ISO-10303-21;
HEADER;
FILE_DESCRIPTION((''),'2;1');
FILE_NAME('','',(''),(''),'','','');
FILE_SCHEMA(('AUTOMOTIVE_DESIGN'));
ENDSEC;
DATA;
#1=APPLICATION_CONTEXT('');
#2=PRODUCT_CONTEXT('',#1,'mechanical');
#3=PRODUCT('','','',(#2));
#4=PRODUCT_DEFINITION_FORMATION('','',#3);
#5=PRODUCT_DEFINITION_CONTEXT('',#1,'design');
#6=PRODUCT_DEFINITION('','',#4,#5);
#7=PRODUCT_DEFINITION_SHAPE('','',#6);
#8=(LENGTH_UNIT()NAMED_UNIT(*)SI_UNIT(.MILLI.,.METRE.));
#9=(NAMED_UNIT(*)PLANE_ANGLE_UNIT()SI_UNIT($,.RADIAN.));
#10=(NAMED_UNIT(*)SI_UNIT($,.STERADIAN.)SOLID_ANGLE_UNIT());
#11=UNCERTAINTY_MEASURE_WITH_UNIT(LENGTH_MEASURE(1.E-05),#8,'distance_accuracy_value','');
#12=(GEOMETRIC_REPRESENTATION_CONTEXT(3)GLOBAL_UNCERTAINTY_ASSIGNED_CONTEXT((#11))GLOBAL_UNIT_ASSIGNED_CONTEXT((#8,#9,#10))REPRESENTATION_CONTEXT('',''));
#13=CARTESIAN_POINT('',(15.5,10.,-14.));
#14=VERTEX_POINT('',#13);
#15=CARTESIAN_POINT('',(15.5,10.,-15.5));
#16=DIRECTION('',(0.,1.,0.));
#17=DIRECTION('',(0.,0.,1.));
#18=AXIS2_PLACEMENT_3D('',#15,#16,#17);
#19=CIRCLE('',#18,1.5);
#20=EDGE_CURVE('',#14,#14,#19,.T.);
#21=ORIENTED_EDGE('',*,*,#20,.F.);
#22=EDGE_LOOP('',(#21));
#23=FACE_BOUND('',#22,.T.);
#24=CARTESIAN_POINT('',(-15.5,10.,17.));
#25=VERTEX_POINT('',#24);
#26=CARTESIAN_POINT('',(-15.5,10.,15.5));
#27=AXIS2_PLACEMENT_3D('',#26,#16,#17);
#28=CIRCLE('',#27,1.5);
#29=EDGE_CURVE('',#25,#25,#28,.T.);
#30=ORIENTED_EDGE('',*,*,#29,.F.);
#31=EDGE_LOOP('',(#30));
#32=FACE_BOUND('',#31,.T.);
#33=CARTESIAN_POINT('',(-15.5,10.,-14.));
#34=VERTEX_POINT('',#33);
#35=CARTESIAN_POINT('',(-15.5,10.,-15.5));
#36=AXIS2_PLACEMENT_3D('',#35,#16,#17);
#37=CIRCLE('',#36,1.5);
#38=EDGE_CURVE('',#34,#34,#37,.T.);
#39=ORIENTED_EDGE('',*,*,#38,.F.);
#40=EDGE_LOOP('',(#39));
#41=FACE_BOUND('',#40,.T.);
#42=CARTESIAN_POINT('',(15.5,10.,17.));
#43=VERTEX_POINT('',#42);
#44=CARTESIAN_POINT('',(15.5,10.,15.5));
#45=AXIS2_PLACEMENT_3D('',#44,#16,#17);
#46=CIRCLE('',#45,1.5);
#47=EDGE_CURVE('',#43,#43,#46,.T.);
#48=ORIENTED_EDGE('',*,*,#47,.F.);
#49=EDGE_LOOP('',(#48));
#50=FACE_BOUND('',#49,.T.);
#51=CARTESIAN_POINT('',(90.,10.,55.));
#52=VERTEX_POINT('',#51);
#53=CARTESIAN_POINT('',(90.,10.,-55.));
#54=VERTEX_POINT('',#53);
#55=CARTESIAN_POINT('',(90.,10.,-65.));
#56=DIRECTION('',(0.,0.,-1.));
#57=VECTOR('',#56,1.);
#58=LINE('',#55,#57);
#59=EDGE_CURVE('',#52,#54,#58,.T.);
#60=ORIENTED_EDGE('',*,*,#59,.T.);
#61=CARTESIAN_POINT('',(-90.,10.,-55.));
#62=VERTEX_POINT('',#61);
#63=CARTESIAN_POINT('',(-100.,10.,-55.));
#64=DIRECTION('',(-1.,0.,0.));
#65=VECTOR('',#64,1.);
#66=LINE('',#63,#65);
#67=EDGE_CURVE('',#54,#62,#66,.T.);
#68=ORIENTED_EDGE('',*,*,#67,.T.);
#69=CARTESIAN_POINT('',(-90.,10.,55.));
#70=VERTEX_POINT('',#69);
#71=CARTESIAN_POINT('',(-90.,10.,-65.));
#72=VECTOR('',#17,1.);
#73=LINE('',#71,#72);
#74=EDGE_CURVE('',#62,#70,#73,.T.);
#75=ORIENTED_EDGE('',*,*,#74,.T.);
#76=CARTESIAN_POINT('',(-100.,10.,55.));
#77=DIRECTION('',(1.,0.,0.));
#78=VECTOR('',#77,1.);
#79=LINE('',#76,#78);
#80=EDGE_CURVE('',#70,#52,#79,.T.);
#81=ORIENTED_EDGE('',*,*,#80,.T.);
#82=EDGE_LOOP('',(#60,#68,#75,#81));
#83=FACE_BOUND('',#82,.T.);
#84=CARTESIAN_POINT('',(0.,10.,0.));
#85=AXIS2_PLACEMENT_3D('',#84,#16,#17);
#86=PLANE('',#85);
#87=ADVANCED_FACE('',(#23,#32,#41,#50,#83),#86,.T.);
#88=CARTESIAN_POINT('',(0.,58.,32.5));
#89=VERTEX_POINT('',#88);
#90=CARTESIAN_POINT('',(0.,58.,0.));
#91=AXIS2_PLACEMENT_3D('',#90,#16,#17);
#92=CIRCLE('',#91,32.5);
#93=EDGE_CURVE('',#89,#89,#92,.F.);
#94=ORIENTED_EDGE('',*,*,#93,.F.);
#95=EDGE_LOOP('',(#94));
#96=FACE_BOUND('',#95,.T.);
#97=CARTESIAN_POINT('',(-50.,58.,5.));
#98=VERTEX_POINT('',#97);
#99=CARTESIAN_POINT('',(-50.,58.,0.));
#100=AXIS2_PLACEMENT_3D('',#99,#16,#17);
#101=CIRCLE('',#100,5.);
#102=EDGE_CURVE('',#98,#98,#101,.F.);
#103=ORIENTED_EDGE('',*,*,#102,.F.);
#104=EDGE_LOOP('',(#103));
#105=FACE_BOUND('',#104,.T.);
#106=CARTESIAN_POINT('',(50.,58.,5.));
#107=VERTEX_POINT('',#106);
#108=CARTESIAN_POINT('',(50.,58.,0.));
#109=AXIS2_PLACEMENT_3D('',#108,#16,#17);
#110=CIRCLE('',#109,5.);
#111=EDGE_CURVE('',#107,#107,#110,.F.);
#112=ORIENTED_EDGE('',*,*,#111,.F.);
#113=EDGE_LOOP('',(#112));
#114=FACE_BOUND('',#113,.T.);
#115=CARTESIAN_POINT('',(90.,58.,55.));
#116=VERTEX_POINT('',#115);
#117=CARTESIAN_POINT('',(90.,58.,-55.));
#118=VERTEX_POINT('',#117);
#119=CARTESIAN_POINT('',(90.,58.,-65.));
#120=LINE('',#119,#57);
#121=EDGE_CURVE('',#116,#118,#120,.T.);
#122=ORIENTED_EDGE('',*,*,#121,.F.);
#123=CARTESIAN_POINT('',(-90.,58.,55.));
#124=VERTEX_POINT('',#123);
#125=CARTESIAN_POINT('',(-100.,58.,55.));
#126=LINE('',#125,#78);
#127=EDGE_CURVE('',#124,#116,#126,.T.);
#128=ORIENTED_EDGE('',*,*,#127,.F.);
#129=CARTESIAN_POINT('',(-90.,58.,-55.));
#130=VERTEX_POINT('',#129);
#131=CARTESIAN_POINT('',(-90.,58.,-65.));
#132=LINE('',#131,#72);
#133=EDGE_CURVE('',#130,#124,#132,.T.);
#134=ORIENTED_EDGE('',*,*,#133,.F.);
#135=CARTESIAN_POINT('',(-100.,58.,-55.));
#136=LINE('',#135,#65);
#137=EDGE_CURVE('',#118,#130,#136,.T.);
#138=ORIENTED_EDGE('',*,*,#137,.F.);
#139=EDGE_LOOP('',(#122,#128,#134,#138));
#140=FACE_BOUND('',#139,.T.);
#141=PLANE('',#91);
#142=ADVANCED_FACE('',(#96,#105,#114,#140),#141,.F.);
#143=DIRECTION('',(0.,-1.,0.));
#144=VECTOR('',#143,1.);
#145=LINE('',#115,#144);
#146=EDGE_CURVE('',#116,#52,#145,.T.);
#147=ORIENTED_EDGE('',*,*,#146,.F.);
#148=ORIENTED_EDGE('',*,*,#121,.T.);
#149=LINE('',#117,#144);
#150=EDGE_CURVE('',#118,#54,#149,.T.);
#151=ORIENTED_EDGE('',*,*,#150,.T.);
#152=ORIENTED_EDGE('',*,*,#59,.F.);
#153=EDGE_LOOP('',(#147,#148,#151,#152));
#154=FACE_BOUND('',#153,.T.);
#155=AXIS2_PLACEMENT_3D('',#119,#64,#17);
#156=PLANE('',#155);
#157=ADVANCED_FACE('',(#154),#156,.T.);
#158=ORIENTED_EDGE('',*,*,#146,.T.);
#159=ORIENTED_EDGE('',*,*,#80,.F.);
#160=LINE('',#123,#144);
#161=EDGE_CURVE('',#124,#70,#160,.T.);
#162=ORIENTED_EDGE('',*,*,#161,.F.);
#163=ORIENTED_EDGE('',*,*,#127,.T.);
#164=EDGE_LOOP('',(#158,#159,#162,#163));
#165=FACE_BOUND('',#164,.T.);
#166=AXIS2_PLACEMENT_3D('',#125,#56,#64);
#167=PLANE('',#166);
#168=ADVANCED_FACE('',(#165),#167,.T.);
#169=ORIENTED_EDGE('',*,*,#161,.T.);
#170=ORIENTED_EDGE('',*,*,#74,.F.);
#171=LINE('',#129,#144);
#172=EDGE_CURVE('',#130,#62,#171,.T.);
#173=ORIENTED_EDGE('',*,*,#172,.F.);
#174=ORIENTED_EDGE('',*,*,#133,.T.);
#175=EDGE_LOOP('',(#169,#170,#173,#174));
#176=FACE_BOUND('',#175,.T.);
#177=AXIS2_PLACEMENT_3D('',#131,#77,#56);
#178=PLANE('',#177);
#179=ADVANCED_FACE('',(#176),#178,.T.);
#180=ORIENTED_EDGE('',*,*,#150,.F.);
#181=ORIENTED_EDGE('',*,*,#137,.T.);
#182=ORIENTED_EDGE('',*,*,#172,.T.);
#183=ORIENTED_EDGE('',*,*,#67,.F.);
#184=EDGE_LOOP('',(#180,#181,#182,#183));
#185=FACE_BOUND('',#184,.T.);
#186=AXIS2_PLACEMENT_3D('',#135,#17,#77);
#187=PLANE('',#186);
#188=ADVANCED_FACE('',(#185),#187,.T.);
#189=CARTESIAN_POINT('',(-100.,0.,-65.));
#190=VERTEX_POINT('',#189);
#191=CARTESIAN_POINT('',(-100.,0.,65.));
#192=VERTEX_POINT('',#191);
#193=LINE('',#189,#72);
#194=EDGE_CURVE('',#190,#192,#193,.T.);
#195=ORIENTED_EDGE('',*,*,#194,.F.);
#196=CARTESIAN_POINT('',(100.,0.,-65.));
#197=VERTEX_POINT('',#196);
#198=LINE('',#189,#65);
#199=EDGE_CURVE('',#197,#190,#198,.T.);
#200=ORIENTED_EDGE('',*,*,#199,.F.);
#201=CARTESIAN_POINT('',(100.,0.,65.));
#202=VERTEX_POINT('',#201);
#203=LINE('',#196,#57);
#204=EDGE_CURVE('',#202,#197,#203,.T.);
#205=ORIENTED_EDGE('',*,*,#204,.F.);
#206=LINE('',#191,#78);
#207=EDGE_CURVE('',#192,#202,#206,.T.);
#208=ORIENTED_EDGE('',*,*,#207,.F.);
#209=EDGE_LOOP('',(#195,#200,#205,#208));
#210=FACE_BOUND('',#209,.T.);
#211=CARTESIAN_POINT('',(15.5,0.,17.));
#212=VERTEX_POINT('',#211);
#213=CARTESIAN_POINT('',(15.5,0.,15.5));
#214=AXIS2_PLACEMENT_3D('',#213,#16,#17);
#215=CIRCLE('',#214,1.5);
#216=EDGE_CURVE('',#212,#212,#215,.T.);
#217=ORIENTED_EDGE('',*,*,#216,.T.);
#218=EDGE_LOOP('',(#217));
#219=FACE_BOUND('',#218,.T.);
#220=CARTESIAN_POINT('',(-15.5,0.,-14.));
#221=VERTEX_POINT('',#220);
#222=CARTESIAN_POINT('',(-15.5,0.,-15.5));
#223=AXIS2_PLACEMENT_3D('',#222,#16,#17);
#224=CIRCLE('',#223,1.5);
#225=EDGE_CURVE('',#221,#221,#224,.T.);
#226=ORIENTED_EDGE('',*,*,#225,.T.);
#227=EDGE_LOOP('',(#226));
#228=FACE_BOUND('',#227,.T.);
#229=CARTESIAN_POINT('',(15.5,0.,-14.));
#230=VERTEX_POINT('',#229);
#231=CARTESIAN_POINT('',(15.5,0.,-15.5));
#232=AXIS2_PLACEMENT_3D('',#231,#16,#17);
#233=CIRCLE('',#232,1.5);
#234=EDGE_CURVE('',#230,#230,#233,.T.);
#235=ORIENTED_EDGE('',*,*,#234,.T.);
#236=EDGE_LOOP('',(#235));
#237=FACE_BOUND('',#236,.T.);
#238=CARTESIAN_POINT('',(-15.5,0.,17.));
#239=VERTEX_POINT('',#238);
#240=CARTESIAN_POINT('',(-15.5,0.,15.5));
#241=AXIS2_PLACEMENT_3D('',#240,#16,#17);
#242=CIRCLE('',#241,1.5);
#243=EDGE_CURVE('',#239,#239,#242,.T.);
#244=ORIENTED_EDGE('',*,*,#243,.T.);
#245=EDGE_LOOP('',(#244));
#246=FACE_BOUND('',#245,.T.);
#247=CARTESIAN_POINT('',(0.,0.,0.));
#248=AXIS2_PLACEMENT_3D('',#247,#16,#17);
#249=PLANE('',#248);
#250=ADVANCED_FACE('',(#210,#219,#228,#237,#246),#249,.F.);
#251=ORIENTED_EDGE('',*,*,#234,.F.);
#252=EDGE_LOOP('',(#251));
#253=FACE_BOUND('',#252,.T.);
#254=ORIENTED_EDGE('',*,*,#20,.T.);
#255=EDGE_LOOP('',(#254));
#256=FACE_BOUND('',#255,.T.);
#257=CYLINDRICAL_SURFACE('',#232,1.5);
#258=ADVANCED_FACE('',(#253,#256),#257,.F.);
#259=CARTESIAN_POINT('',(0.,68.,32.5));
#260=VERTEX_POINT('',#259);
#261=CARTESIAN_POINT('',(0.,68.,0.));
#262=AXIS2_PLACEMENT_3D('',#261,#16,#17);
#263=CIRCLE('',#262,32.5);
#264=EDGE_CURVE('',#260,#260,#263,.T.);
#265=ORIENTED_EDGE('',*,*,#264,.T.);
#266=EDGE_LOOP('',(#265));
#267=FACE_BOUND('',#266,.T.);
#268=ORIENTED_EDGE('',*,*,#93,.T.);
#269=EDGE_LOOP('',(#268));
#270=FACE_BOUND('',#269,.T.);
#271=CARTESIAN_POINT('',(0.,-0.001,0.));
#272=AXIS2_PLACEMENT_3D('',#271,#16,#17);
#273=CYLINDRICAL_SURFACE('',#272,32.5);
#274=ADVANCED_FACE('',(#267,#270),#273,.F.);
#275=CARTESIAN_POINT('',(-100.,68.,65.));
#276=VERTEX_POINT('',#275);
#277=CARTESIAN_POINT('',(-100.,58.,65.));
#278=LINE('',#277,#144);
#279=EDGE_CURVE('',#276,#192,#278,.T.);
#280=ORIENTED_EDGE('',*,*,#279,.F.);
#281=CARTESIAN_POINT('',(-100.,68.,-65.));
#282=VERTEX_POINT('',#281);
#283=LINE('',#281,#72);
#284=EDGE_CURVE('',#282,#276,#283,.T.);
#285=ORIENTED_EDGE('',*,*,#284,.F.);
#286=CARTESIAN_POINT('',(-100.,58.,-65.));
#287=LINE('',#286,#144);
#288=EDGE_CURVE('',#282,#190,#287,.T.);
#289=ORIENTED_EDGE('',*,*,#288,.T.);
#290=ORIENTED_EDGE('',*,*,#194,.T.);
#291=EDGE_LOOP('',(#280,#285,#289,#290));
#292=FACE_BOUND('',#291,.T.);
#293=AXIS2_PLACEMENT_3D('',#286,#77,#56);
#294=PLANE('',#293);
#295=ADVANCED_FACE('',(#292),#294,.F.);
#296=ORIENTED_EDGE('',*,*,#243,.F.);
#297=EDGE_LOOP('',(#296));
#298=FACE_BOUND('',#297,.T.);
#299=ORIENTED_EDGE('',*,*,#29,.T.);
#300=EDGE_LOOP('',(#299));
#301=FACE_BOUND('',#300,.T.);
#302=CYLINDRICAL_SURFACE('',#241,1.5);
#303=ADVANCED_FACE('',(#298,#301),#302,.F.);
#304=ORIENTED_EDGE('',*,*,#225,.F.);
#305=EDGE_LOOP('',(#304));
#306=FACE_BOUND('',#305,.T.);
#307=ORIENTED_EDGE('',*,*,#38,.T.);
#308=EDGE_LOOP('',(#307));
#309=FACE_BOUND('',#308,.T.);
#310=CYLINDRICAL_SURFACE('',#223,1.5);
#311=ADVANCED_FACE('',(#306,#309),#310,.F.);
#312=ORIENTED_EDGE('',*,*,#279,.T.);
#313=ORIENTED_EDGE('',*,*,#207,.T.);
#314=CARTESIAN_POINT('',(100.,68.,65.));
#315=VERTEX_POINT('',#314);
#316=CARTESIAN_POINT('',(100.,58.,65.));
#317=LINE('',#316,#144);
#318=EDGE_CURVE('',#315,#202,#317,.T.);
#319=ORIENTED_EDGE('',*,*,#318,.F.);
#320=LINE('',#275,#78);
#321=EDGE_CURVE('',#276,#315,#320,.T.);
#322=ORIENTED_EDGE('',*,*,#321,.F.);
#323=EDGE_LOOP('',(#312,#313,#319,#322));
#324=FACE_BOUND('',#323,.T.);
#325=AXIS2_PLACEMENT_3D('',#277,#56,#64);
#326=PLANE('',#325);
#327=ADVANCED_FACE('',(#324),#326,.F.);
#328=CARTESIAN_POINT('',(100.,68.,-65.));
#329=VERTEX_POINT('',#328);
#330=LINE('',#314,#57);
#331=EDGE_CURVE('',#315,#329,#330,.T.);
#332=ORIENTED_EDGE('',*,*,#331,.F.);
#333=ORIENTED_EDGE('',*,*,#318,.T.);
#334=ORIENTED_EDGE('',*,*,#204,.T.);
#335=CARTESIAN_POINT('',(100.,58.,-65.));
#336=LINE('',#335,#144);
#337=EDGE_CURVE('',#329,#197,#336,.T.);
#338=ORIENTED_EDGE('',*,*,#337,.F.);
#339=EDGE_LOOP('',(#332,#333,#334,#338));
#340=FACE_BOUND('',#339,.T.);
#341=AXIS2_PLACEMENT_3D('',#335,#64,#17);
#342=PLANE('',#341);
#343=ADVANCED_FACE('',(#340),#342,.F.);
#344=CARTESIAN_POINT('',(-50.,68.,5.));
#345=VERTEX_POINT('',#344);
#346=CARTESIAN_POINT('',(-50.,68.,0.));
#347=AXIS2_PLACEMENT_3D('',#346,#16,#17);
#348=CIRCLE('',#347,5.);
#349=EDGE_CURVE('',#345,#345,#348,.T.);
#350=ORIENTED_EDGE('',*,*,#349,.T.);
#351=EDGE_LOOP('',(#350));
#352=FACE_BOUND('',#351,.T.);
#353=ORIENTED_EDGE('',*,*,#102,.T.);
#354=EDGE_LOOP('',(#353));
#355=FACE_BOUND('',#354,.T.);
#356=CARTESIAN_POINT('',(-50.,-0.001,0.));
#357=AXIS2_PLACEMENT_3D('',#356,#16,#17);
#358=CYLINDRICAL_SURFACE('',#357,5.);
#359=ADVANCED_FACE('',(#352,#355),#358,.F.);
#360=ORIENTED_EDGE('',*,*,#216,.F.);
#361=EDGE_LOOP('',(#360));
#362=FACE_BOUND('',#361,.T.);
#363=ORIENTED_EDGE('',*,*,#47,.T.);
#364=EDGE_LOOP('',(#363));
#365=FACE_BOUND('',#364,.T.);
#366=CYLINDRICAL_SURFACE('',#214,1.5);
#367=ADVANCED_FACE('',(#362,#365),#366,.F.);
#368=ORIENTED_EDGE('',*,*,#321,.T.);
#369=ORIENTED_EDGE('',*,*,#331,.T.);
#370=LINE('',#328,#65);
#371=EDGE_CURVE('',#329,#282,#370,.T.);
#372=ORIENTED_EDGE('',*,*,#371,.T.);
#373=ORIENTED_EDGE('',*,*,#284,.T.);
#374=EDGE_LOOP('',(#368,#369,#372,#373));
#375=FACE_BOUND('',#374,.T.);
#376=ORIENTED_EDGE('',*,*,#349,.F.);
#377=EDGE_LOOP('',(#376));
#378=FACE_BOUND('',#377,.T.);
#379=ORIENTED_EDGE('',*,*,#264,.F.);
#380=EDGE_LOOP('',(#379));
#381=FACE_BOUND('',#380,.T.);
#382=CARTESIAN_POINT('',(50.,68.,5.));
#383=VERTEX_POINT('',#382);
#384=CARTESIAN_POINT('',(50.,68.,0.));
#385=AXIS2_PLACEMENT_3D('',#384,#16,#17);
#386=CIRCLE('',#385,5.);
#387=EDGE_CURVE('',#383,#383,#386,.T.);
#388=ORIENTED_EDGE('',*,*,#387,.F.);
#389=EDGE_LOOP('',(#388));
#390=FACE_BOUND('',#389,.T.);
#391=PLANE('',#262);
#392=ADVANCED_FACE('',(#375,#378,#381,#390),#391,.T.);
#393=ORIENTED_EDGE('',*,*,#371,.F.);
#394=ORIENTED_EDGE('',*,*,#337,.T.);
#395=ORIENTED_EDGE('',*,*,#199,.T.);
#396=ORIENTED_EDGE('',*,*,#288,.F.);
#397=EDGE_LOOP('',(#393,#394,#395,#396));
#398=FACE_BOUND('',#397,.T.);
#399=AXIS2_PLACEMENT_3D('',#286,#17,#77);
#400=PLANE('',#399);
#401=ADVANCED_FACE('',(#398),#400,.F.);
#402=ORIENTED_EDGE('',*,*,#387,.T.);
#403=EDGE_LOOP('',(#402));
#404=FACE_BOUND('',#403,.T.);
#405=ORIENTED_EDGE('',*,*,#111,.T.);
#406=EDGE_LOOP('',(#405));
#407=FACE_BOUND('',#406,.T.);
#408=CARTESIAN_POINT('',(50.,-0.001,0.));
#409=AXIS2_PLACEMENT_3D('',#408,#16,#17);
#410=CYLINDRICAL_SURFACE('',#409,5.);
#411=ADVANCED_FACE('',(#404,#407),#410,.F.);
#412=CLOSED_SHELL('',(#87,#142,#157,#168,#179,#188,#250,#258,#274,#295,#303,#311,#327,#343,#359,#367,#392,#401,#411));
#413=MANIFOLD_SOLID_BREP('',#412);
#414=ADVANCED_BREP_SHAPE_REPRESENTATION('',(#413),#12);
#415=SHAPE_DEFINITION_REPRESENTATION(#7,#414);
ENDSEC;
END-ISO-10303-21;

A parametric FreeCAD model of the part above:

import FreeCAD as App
import Part
import Sketcher
from FreeCAD import Vector


def faces_at(feature, points):
    """Names of the faces that lie closest to the given points."""
    faces = feature.Shape.Faces
    near = lambda p: min(range(len(faces)), key=lambda i: faces[i].distToShape(Part.Vertex(*p))[0])
    return sorted({f"Face{near(p) + 1}" for p in points})

doc = App.newDocument("Part")
body = doc.addObject("PartDesign::Body", "Body")

# Sketch on XZ plane
sketch1 = body.newObject("Sketcher::SketchObject", "Sketch")
sketch1.AttachmentSupport = (doc.getObject("XZ_Plane"), [""])
sketch1.MapMode = "FlatFace"
sketch1.addGeometry([
    Part.LineSegment(Vector(-100, -65, 0), Vector(-100, 65, 0)),
    Part.LineSegment(Vector(-100, 65, 0), Vector(100, 65, 0)),
    Part.LineSegment(Vector(100, 65, 0), Vector(100, -65, 0)),
    Part.LineSegment(Vector(100, -65, 0), Vector(-100, -65, 0)),
], False)
sketch1.addConstraint([
    Sketcher.Constraint("Coincident", 0, 2, 1, 1),
    Sketcher.Constraint("Coincident", 1, 2, 2, 1),
    Sketcher.Constraint("Coincident", 2, 2, 3, 1),
    Sketcher.Constraint("Coincident", 3, 2, 0, 1),
    Sketcher.Constraint("Vertical", 0),
    Sketcher.Constraint("Horizontal", 1),
    Sketcher.Constraint("Vertical", 2),
    Sketcher.Constraint("Horizontal", 3),
    Sketcher.Constraint("Symmetric", 0, 2, 2, 2, -1, 1),
    Sketcher.Constraint("DistanceX", 1, 1, 1, 2, 200.0),
    Sketcher.Constraint("DistanceY", 0, 1, 0, 2, 130.0),
])
pad1 = body.newObject("PartDesign::Pad", "Pad")
pad1.Profile = sketch1
pad1.Length = 58
pad1.Reversed = True
doc.recompute()

thickness = body.newObject("PartDesign::Thickness", "Thickness")
thickness.Base = (pad1, faces_at(pad1, [(0, 58, 0)]))
thickness.Value = 10
thickness.Reversed = True
thickness.Join = "Intersection"

# Sketch on XZ plane
sketch2 = body.newObject("Sketcher::SketchObject", "Sketch001")
sketch2.AttachmentSupport = (doc.getObject("XZ_Plane"), [""])
sketch2.MapMode = "FlatFace"
sketch2.AttachmentOffset = App.Placement(Vector(0, 0, -10), App.Rotation())
sketch2.addGeometry([
    Part.Circle(Vector(-15.5, -15.5, 0), Vector(0, 0, 1), 1.5),
    Part.Circle(Vector(15.5, -15.5, 0), Vector(0, 0, 1), 1.5),
    Part.Circle(Vector(-15.5, 15.5, 0), Vector(0, 0, 1), 1.5),
    Part.Circle(Vector(15.5, 15.5, 0), Vector(0, 0, 1), 1.5),
], False)
sketch2.addConstraint([
    Sketcher.Constraint("Equal", 0, 1),
    Sketcher.Constraint("Equal", 1, 2),
    Sketcher.Constraint("Equal", 2, 3),
    Sketcher.Constraint("Symmetric", 1, 3, 2, 3, -1, 1),
    Sketcher.Constraint("Symmetric", 0, 3, 3, 3, -1, 1),
    Sketcher.Constraint("Symmetric", 0, 3, 1, 3, -2),
    Sketcher.Constraint("Diameter", 0, 3.0),
    Sketcher.Constraint("DistanceX", 0, 3, 1, 3, 31.0),
    Sketcher.Constraint("DistanceY", 0, 3, 2, 3, 31.0),
])
pocket1 = body.newObject("PartDesign::Pocket", "Pocket")
pocket1.Profile = sketch2
pocket1.Type = "ThroughAll"
pocket1.Reversed = True

# Sketch on XZ plane
sketch3 = body.newObject("Sketcher::SketchObject", "Sketch002")
sketch3.AttachmentSupport = (doc.getObject("XZ_Plane"), [""])
sketch3.MapMode = "FlatFace"
sketch3.AttachmentOffset = App.Placement(Vector(0, 0, -58), App.Rotation())
sketch3.addGeometry([
    Part.LineSegment(Vector(-100, -65, 0), Vector(-100, 65, 0)),
    Part.LineSegment(Vector(-100, 65, 0), Vector(100, 65, 0)),
    Part.LineSegment(Vector(100, 65, 0), Vector(100, -65, 0)),
    Part.LineSegment(Vector(100, -65, 0), Vector(-100, -65, 0)),
], False)
sketch3.addConstraint([
    Sketcher.Constraint("Coincident", 0, 2, 1, 1),
    Sketcher.Constraint("Coincident", 1, 2, 2, 1),
    Sketcher.Constraint("Coincident", 2, 2, 3, 1),
    Sketcher.Constraint("Coincident", 3, 2, 0, 1),
    Sketcher.Constraint("Vertical", 0),
    Sketcher.Constraint("Horizontal", 1),
    Sketcher.Constraint("Vertical", 2),
    Sketcher.Constraint("Horizontal", 3),
    Sketcher.Constraint("Symmetric", 0, 2, 2, 2, -1, 1),
    Sketcher.Constraint("DistanceX", 1, 1, 1, 2, 200.0),
    Sketcher.Constraint("DistanceY", 0, 1, 0, 2, 130.0),
])
pad2 = body.newObject("PartDesign::Pad", "Pad001")
pad2.Profile = sketch3
pad2.Length = 10
pad2.Reversed = True

# Sketch on XZ plane
sketch4 = body.newObject("Sketcher::SketchObject", "Sketch003")
sketch4.AttachmentSupport = (doc.getObject("XZ_Plane"), [""])
sketch4.MapMode = "FlatFace"
sketch4.AttachmentOffset = App.Placement(Vector(0, 0, -68), App.Rotation())
sketch4.addGeometry(Part.Circle(Vector(0, 0, 0), Vector(0, 0, 1), 32), False)
sketch4.addConstraint([
    Sketcher.Constraint("Coincident", 0, 3, -1, 1),
    Sketcher.Constraint("Diameter", 0, 65.0),
])
pocket2 = body.newObject("PartDesign::Pocket", "Pocket001")
pocket2.Profile = sketch4
pocket2.Type = "UpToFirst"
pocket2.Reversed = True

# Sketch on XZ plane
sketch5 = body.newObject("Sketcher::SketchObject", "Sketch004")
sketch5.AttachmentSupport = (doc.getObject("XZ_Plane"), [""])
sketch5.MapMode = "FlatFace"
sketch5.AttachmentOffset = App.Placement(Vector(0, 0, -68), App.Rotation())
sketch5.addGeometry(Part.Circle(Vector(-50, 0, 0), Vector(0, 0, 1), 5), False)
sketch5.addConstraint([
    Sketcher.Constraint("PointOnObject", 0, 3, -1),
    Sketcher.Constraint("Diameter", 0, 10.0),
    Sketcher.Constraint("DistanceX", 0, 3, -1, 1, 50.0),
])
pocket3 = body.newObject("PartDesign::Pocket", "Pocket002")
pocket3.Profile = sketch5
pocket3.Type = "UpToFirst"
pocket3.Reversed = True

# Sketch on XZ plane
sketch6 = body.newObject("Sketcher::SketchObject", "Sketch005")
sketch6.AttachmentSupport = (doc.getObject("XZ_Plane"), [""])
sketch6.MapMode = "FlatFace"
sketch6.AttachmentOffset = App.Placement(Vector(0, 0, -68), App.Rotation())
sketch6.addGeometry(Part.Circle(Vector(50, 0, 0), Vector(0, 0, 1), 5), False)
sketch6.addConstraint([
    Sketcher.Constraint("PointOnObject", 0, 3, -1),
    Sketcher.Constraint("Diameter", 0, 10.0),
    Sketcher.Constraint("DistanceX", -1, 1, 0, 3, 50.0),
])
pocket4 = body.newObject("PartDesign::Pocket", "Pocket003")
pocket4.Profile = sketch6
pocket4.Type = "UpToFirst"
pocket4.Reversed = True

doc.recompute()
